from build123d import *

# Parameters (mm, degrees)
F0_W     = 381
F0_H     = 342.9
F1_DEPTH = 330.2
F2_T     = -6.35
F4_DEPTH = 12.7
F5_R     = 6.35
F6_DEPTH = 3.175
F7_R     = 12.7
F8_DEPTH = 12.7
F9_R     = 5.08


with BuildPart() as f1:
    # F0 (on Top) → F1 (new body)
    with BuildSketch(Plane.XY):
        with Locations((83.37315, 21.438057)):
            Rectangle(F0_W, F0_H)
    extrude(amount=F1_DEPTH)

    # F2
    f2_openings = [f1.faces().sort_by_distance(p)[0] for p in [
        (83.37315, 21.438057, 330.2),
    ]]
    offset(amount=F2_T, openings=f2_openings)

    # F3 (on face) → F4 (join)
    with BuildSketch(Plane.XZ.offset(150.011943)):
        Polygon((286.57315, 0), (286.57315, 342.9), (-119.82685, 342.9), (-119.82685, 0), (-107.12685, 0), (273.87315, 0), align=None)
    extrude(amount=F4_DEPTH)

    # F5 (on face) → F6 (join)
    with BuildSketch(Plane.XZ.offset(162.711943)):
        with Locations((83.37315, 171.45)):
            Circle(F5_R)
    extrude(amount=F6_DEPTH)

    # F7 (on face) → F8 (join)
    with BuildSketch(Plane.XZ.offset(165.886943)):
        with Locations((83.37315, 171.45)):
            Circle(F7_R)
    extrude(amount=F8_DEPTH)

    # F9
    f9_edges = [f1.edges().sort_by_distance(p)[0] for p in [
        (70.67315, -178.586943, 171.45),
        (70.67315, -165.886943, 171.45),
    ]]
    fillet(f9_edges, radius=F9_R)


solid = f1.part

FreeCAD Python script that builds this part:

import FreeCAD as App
import Part
import Sketcher
Q = App.Units.Quantity


def edges_at(feature, points):
    """Names of the edges that pass closest to the given points."""
    edges = feature.Shape.Edges
    near = lambda p: min(range(len(edges)), key=lambda i: edges[i].distToShape(Part.Vertex(*p))[0])
    return sorted({f"Edge{near(p) + 1}" for p in points})


def faces_at(feature, points):
    """Names of the faces that lie closest to the given points."""
    faces = feature.Shape.Faces
    near = lambda p: min(range(len(faces)), key=lambda i: faces[i].distToShape(Part.Vertex(*p))[0])
    return sorted({f"Face{near(p) + 1}" for p in points})

doc = App.newDocument("Part")
body = doc.addObject("PartDesign::Body", "Body")

# Sketch on XY plane
sketch1 = doc.addObject("Sketcher::SketchObject", "Sketch")
body.addObject(sketch1)
sketch1.AttachmentSupport = (doc.XY_Plane, [""])
sketch1.MapMode = "FlatFace"
sketch1.addGeometry([
    Part.LineSegment(App.Vector(-107, 193, 0), App.Vector(-107, -150, 0)),
    Part.LineSegment(App.Vector(-107, -150, 0), App.Vector(274, -150, 0)),
    Part.LineSegment(App.Vector(274, -150, 0), App.Vector(274, 193, 0)),
    Part.LineSegment(App.Vector(274, 193, 0), App.Vector(-107, 193, 0)),
], False)
sketch1.addConstraint([
    Sketcher.Constraint("Coincident", 0, 2, 1, 1),
    Sketcher.Constraint("Coincident", 1, 2, 2, 1),
    Sketcher.Constraint("Coincident", 2, 2, 3, 1),
    Sketcher.Constraint("Coincident", 3, 2, 0, 1),
    Sketcher.Constraint("Vertical", 0),
    Sketcher.Constraint("Horizontal", 1),
    Sketcher.Constraint("Vertical", 2),
    Sketcher.Constraint("Horizontal", 3),
    Sketcher.Constraint("DistanceX", 1, 1, 1, 2, Q("15 in")),
    Sketcher.Constraint("DistanceY", 0, 2, 0, 1, Q("13.5 in")),
    Sketcher.Constraint("DistanceX", 0, 2, -1, 1, Q("107.12685 mm")),
    Sketcher.Constraint("DistanceY", 0, 2, -1, 1, Q("150.011943 mm")),
])
pad1 = doc.addObject("PartDesign::Pad", "Pad")
body.addObject(pad1)
pad1.Profile = sketch1
pad1.Length = Q("13 in")
doc.recompute()

thickness = doc.addObject("PartDesign::Thickness", "Thickness")
body.addObject(thickness)
thickness.Base = (pad1, faces_at(pad1, [(83.373, 21.438, 330.2)]))
thickness.Value = Q("0.25 in")
thickness.Reversed = True
thickness.Join = "Arc"

# Sketch on XZ plane
sketch2 = doc.addObject("Sketcher::SketchObject", "Sketch001")
body.addObject(sketch2)
sketch2.AttachmentSupport = (doc.XZ_Plane, [""])
sketch2.MapMode = "FlatFace"
sketch2.AttachmentOffset = App.Placement(App.Vector(0, 0, 150.011943), App.Rotation())
sketch2.addGeometry([
    Part.LineSegment(App.Vector(287, 0, 0), App.Vector(287, 343, 0)),
    Part.LineSegment(App.Vector(287, 343, 0), App.Vector(-120, 343, 0)),
    Part.LineSegment(App.Vector(-120, 343, 0), App.Vector(-120, 0, 0)),
    Part.LineSegment(App.Vector(-120, 0, 0), App.Vector(287, 0, 0)),
], False)
sketch2.addConstraint([
    Sketcher.Constraint("Coincident", 0, 2, 1, 1),
    Sketcher.Constraint("Coincident", 1, 2, 2, 1),
    Sketcher.Constraint("Coincident", 2, 2, 3, 1),
    Sketcher.Constraint("Coincident", 3, 2, 0, 1),
    Sketcher.Constraint("Vertical", 0),
    Sketcher.Constraint("Horizontal", 1),
    Sketcher.Constraint("Vertical", 2),
    Sketcher.Constraint("Horizontal", 3),
    Sketcher.Constraint("PointOnObject", 2, 2, -1),
    Sketcher.Constraint("DistanceX", 1, 2, 1, 1, Q("16 in")),
    Sketcher.Constraint("DistanceY", 0, 1, 0, 2, Q("13.5 in")),
    Sketcher.Constraint("DistanceX", -1, 1, 0, 2, Q("286.57315 mm")),
])
pad2 = doc.addObject("PartDesign::Pad", "Pad001")
body.addObject(pad2)
pad2.Profile = sketch2
pad2.Length = Q("0.5 in")

# Sketch on XZ plane
sketch3 = doc.addObject("Sketcher::SketchObject", "Sketch002")
body.addObject(sketch3)
sketch3.AttachmentSupport = (doc.XZ_Plane, [""])
sketch3.MapMode = "FlatFace"
sketch3.AttachmentOffset = App.Placement(App.Vector(0, 0, 162.711943), App.Rotation())
sketch3.addGeometry(Part.Circle(App.Vector(83, 171, 0), App.Vector(0, 0, 1), 6), False)
sketch3.addConstraint([
    Sketcher.Constraint("Diameter", 0, Q("0.5 in")),
    Sketcher.Constraint("DistanceY", -1, 1, 0, 3, Q("6.75 in")),
    Sketcher.Constraint("DistanceX", -1, 1, 0, 3, Q("83.37315 mm")),
])
pad3 = doc.addObject("PartDesign::Pad", "Pad002")
body.addObject(pad3)
pad3.Profile = sketch3
pad3.Length = Q("0.125 in")

# Sketch on XZ plane
sketch4 = doc.addObject("Sketcher::SketchObject", "Sketch003")
body.addObject(sketch4)
sketch4.AttachmentSupport = (doc.XZ_Plane, [""])
sketch4.MapMode = "FlatFace"
sketch4.AttachmentOffset = App.Placement(App.Vector(0, 0, 165.886943), App.Rotation())
sketch4.addGeometry(Part.Circle(App.Vector(83, 171, 0), App.Vector(0, 0, 1), 13), False)
sketch4.addConstraint([
    Sketcher.Constraint("Diameter", 0, Q("1 in")),
    Sketcher.Constraint("DistanceY", -1, 1, 0, 3, Q("6.75 in")),
    Sketcher.Constraint("DistanceX", -1, 1, 0, 3, Q("83.37315 mm")),
])
pad4 = doc.addObject("PartDesign::Pad", "Pad003")
body.addObject(pad4)
pad4.Profile = sketch4
pad4.Length = Q("0.5 in")
doc.recompute()

fillet = doc.addObject("PartDesign::Fillet", "Fillet")
body.addObject(fillet)
fillet.Base = (pad4, edges_at(pad4, [(70.673, -178.587, 171.45), (70.673, -165.887, 171.45)]))
fillet.Radius = Q("0.2 in")

doc.recompute()
